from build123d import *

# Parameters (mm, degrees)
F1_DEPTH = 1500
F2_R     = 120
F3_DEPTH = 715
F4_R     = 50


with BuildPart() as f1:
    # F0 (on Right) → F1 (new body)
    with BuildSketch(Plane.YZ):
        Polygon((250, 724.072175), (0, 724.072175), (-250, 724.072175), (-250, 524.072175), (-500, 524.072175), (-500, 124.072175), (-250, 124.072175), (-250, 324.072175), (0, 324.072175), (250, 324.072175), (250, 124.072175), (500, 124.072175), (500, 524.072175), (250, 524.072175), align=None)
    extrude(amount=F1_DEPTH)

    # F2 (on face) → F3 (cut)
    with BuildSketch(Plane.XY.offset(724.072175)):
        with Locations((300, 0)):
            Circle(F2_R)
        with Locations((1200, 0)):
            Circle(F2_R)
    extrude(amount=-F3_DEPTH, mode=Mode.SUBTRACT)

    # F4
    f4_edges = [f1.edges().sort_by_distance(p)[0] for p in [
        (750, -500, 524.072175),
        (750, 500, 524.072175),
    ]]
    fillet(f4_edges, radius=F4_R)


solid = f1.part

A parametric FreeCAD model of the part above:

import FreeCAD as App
import Part
import Sketcher


def edges_at(feature, points):
    """Names of the edges that pass closest to the given points."""
    edges = feature.Shape.Edges
    near = lambda p: min(range(len(edges)), key=lambda i: edges[i].distToShape(Part.Vertex(*p))[0])
    return sorted({f"Edge{near(p) + 1}" for p in points})

doc = App.newDocument("Part")
body = doc.addObject("PartDesign::Body", "Body")

# Sketch on YZ plane
sketch1 = body.newObject("Sketcher::SketchObject", "Sketch")
sketch1.AttachmentSupport = (doc.getObject("YZ_Plane"), [""])
sketch1.MapMode = "FlatFace"
sketch1.addGeometry(Part.LineSegment(App.Vector(250, 724.072175, 0), App.Vector(-250, 724.072175, 0)), False)
sketch1.addGeometry(Part.LineSegment(App.Vector(-250, 724.072175, 0), App.Vector(-250, 524.072175, 0)), False)
sketch1.addGeometry(Part.LineSegment(App.Vector(-250, 524.072175, 0), App.Vector(-500, 524.072175, 0)), False)
sketch1.addGeometry(Part.LineSegment(App.Vector(-500, 524.072175, 0), App.Vector(-500, 124.072175, 0)), False)
sketch1.addGeometry(Part.LineSegment(App.Vector(-500, 124.072175, 0), App.Vector(-250, 124.072175, 0)), False)
sketch1.addGeometry(Part.LineSegment(App.Vector(-250, 124.072175, 0), App.Vector(-250, 324.072175, 0)), False)
sketch1.addGeometry(Part.LineSegment(App.Vector(-250, 324.072175, 0), App.Vector(250, 324.072175, 0)), False)
sketch1.addGeometry(Part.LineSegment(App.Vector(250, 324.072175, 0), App.Vector(250, 124.072175, 0)), False)
sketch1.addGeometry(Part.LineSegment(App.Vector(250, 124.072175, 0), App.Vector(500, 124.072175, 0)), False)
sketch1.addGeometry(Part.LineSegment(App.Vector(500, 124.072175, 0), App.Vector(500, 524.072175, 0)), False)
sketch1.addGeometry(Part.LineSegment(App.Vector(500, 524.072175, 0), App.Vector(250, 524.072175, 0)), False)
sketch1.addGeometry(Part.LineSegment(App.Vector(250, 524.072175, 0), App.Vector(250, 724.072175, 0)), False)
sketch1.addConstraint(Sketcher.Constraint("Coincident", 0, 2, 1, 1))
sketch1.addConstraint(Sketcher.Constraint("Coincident", 1, 2, 2, 1))
sketch1.addConstraint(Sketcher.Constraint("Coincident", 2, 2, 3, 1))
sketch1.addConstraint(Sketcher.Constraint("Coincident", 3, 2, 4, 1))
sketch1.addConstraint(Sketcher.Constraint("Coincident", 4, 2, 5, 1))
sketch1.addConstraint(Sketcher.Constraint("Coincident", 5, 2, 6, 1))
sketch1.addConstraint(Sketcher.Constraint("Coincident", 6, 2, 7, 1))
sketch1.addConstraint(Sketcher.Constraint("Coincident", 7, 2, 8, 1))
sketch1.addConstraint(Sketcher.Constraint("Coincident", 8, 2, 9, 1))
sketch1.addConstraint(Sketcher.Constraint("Coincident", 9, 2, 10, 1))
sketch1.addConstraint(Sketcher.Constraint("Coincident", 10, 2, 11, 1))
sketch1.addConstraint(Sketcher.Constraint("Coincident", 11, 2, 0, 1))
sketch1.addConstraint(Sketcher.Constraint("Horizontal", 0))
sketch1.addConstraint(Sketcher.Constraint("Vertical", 1))
sketch1.addConstraint(Sketcher.Constraint("Horizontal", 2))
sketch1.addConstraint(Sketcher.Constraint("Vertical", 3))
sketch1.addConstraint(Sketcher.Constraint("Horizontal", 4))
sketch1.addConstraint(Sketcher.Constraint("Vertical", 5))
sketch1.addConstraint(Sketcher.Constraint("Horizontal", 6))
sketch1.addConstraint(Sketcher.Constraint("Vertical", 7))
sketch1.addConstraint(Sketcher.Constraint("Horizontal", 8))
sketch1.addConstraint(Sketcher.Constraint("Vertical", 9))
sketch1.addConstraint(Sketcher.Constraint("Horizontal", 10))
sketch1.addConstraint(Sketcher.Constraint("Vertical", 11))
sketch1.addConstraint(Sketcher.Constraint("Symmetric", 4, 2, 7, 2, -2))
sketch1.addConstraint(Sketcher.Constraint("Symmetric", 2, 2, 9, 2, -2))
sketch1.addConstraint(Sketcher.Constraint("Vertical", 1, 2, 4, 2))
sketch1.addConstraint(Sketcher.Constraint("Vertical", 7, 2, 10, 2))
sketch1.addConstraint(Sketcher.Constraint("Equal", 1, 5))
sketch1.addConstraint(Sketcher.Constraint("DistanceX", 0, 2, 0, 1, 500.0))
sketch1.addConstraint(Sketcher.Constraint("DistanceX", 2, 2, 2, 1, 250.0))
sketch1.addConstraint(Sketcher.Constraint("DistanceY", 1, 2, 1, 1, 200.0))
sketch1.addConstraint(Sketcher.Constraint("DistanceY", 3, 2, 3, 1, 400.0))
sketch1.addConstraint(Sketcher.Constraint("DistanceY", -1, 1, 0, 2, 724.072175))
pad1 = body.newObject("PartDesign::Pad", "Pad")
pad1.Profile = sketch1
pad1.Length = 1500

# Sketch on XY plane
sketch2 = body.newObject("Sketcher::SketchObject", "Sketch001")
sketch2.AttachmentSupport = (doc.getObject("XY_Plane"), [""])
sketch2.MapMode = "FlatFace"
sketch2.AttachmentOffset = App.Placement(App.Vector(0, 0, 724.072175), App.Rotation())
sketch2.addGeometry(Part.Circle(App.Vector(300, 0, 0), App.Vector(0, 0, 1), 120), False)
sketch2.addGeometry(Part.Circle(App.Vector(1200, 0, 0), App.Vector(0, 0, 1), 120), False)
sketch2.addConstraint(Sketcher.Constraint("Equal", 0, 1))
sketch2.addConstraint(Sketcher.Constraint("PointOnObject", 0, 3, -1))
sketch2.addConstraint(Sketcher.Constraint("PointOnObject", 1, 3, -1))
sketch2.addConstraint(Sketcher.Constraint("Diameter", 0, 240.0))
sketch2.addConstraint(Sketcher.Constraint("DistanceX", -1, 1, 0, 3, 300.0))
sketch2.addConstraint(Sketcher.Constraint("DistanceX", -1, 1, 1, 3, 1200.0))
pocket1 = body.newObject("PartDesign::Pocket", "Pocket")
pocket1.Profile = sketch2
pocket1.Length = 715
doc.recompute()

fillet = body.newObject("PartDesign::Fillet", "Fillet")
fillet.Base = (pocket1, edges_at(pocket1, [(750, -500, 524.072), (750, 500, 524.072)]))
fillet.Radius = 50

doc.recompute()
